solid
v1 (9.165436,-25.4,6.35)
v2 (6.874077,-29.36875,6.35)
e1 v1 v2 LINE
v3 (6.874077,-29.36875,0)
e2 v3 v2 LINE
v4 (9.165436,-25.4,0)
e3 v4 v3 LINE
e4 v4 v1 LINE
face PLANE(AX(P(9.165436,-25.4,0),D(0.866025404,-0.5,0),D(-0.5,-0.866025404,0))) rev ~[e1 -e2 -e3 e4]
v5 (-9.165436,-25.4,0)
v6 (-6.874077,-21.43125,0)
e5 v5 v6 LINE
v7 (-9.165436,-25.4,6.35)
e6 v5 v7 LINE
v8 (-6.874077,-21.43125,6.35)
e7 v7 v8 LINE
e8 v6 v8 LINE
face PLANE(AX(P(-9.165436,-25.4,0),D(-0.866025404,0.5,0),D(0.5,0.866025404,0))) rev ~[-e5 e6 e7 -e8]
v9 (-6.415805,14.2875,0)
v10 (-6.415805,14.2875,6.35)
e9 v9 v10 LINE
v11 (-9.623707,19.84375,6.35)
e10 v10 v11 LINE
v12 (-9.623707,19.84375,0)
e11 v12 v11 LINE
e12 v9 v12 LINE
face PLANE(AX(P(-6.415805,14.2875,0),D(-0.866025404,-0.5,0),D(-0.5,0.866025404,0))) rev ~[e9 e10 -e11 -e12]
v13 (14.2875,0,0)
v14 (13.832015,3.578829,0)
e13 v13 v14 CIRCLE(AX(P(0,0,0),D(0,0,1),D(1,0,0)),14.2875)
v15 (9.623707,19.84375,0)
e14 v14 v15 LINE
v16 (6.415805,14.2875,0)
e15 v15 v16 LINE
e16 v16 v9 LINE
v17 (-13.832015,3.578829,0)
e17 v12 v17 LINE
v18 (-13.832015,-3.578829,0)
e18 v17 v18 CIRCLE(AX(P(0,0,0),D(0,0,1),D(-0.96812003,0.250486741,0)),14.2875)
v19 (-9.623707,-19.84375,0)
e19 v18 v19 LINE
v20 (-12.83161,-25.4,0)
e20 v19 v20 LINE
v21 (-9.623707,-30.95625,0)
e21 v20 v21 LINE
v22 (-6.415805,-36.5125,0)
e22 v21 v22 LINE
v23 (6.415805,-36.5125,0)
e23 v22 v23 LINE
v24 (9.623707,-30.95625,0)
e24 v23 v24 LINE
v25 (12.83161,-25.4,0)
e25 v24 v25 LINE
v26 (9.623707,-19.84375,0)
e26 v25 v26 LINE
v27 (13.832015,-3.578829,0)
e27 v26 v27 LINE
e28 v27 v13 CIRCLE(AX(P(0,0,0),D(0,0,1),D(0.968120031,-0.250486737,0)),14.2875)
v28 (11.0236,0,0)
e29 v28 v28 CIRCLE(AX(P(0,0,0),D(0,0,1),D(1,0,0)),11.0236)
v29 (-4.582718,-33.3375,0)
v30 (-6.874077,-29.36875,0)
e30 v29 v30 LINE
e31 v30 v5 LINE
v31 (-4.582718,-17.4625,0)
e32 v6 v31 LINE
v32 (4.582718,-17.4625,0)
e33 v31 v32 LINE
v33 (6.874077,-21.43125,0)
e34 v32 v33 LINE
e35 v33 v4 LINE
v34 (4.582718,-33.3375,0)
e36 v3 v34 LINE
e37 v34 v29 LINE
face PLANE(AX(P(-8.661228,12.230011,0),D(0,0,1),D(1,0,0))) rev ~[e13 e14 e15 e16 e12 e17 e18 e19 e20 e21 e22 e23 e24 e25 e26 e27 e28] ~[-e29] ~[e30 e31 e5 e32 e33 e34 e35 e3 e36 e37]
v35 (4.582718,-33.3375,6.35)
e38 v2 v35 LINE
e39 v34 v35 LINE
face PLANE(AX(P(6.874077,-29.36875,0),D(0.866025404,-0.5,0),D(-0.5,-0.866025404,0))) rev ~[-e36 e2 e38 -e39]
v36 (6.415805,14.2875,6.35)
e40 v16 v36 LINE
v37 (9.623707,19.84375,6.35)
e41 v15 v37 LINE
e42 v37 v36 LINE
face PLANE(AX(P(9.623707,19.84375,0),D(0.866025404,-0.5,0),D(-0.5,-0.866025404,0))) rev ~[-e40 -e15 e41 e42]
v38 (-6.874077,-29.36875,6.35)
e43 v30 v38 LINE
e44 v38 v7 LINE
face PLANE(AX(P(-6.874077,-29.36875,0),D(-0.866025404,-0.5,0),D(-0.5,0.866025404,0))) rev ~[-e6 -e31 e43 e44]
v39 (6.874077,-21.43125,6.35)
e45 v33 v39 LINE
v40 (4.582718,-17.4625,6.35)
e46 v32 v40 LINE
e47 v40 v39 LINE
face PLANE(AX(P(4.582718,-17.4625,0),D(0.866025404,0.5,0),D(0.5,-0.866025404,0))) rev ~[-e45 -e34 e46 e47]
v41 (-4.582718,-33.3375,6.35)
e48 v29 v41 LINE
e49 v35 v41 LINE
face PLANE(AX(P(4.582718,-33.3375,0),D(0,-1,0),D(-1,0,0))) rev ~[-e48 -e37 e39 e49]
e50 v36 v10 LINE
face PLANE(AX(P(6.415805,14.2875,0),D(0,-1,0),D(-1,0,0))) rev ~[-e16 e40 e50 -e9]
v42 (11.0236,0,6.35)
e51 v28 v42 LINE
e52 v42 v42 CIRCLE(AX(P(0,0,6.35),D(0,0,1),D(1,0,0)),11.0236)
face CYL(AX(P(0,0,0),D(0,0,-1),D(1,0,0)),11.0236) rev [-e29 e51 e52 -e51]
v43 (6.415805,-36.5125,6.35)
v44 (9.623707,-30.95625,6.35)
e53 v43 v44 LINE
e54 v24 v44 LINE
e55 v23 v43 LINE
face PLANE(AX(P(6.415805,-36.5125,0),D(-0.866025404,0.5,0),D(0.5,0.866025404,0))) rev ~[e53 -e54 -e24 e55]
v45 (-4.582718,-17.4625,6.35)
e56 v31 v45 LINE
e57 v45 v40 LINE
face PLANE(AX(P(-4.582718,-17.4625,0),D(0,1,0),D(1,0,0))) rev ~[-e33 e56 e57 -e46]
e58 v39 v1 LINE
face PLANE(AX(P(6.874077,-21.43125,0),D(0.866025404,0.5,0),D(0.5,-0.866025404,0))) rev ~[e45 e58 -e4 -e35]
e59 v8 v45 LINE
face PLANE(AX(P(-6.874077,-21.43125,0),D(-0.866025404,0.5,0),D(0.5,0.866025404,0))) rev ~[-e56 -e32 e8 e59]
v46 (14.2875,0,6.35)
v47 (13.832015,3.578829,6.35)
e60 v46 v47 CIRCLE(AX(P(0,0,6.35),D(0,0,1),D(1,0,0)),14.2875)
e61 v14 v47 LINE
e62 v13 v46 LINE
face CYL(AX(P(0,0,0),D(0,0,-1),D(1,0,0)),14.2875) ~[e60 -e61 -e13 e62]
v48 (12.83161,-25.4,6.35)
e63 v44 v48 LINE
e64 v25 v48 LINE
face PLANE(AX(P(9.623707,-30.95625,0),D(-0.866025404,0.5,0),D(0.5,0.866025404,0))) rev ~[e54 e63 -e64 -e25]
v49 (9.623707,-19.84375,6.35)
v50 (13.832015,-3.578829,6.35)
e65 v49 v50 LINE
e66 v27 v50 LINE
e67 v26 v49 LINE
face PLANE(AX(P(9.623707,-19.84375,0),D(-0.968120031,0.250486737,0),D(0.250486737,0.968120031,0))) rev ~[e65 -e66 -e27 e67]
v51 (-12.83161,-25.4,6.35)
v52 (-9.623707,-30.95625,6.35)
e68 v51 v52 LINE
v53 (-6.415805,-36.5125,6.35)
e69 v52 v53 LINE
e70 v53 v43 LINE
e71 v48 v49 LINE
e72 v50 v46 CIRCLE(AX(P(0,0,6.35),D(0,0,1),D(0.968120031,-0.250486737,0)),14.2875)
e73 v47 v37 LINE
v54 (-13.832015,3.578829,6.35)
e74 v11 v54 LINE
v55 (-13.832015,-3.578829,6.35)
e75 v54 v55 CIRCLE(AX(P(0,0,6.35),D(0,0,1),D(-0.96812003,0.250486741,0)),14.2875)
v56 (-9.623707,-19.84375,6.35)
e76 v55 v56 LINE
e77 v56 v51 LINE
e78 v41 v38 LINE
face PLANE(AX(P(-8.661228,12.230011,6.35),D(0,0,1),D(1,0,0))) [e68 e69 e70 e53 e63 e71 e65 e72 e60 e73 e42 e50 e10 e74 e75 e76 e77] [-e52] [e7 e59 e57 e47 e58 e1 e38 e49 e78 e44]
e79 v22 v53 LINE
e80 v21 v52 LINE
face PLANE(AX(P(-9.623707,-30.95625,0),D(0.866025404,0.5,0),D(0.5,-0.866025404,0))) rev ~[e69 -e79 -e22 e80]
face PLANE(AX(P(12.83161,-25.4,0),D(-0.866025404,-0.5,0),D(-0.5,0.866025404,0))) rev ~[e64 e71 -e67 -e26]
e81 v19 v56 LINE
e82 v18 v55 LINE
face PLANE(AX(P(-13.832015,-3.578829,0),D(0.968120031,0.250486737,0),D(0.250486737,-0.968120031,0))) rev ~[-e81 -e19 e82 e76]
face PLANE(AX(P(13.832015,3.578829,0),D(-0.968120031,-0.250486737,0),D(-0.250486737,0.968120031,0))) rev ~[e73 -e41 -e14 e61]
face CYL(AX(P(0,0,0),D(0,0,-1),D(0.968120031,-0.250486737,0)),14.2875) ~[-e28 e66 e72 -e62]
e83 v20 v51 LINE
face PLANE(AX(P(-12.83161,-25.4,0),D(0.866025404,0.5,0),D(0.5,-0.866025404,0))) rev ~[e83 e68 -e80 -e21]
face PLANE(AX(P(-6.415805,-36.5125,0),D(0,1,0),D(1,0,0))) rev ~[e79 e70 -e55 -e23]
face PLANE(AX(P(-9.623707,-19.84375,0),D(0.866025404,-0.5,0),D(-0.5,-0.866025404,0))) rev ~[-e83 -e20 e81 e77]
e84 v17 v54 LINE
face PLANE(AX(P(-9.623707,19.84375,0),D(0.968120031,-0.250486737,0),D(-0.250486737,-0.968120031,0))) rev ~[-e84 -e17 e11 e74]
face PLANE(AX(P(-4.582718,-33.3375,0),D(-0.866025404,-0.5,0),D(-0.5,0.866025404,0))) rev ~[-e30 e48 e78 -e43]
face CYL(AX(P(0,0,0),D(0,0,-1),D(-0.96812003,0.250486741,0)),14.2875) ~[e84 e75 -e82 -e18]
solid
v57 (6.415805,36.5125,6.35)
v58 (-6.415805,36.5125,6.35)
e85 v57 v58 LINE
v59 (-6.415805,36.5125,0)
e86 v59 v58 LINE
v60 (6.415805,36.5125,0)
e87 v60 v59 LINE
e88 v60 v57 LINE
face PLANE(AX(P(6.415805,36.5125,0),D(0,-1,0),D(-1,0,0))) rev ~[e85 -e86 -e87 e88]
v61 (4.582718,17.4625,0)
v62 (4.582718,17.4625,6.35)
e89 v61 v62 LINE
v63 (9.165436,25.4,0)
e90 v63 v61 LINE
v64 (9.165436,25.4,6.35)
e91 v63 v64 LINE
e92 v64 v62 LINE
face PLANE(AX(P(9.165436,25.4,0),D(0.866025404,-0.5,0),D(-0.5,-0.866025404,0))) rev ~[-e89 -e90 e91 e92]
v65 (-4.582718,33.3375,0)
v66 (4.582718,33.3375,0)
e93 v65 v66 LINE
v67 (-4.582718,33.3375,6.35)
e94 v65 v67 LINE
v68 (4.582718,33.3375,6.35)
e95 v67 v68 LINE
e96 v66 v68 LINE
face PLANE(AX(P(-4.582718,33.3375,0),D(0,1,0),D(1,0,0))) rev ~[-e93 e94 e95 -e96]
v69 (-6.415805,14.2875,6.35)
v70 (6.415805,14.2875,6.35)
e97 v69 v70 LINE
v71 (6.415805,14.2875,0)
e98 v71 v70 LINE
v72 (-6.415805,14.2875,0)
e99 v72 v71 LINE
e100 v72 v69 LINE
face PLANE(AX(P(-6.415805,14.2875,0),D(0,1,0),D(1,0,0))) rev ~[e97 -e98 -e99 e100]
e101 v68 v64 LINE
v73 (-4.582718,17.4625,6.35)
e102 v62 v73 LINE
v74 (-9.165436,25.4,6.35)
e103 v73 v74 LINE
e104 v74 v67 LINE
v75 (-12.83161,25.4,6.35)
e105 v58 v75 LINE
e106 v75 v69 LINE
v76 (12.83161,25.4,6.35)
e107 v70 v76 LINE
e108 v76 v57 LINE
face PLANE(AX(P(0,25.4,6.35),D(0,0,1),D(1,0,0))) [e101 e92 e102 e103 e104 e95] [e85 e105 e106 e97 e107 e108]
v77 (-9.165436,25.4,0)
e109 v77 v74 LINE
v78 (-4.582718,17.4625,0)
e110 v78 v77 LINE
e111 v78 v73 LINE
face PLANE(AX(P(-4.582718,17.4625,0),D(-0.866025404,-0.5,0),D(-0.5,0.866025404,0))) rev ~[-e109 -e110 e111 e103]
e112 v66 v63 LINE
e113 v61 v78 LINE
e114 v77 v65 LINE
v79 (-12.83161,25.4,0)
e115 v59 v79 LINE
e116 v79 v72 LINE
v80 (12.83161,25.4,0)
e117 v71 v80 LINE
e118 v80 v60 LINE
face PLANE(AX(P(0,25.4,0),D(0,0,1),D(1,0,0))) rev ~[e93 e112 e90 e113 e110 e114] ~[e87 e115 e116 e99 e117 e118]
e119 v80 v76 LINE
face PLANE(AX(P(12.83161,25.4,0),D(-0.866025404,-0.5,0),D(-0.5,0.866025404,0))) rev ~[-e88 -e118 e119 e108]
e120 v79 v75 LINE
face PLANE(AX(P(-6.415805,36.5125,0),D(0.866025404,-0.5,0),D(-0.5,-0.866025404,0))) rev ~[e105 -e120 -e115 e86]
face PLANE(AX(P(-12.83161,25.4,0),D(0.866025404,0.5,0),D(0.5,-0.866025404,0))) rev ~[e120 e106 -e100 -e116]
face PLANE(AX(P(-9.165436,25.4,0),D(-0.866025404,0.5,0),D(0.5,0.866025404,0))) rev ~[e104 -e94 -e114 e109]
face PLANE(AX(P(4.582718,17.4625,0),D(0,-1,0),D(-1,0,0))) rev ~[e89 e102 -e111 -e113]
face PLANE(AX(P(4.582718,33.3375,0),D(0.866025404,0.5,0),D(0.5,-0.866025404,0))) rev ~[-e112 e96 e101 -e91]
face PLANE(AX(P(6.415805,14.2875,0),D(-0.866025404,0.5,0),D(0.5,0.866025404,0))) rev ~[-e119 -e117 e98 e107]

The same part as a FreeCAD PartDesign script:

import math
import FreeCAD as App
import Part
import Sketcher
from FreeCAD import Vector
Q = App.Units.Quantity

doc = App.newDocument("Part")
params = doc.addObject("Spreadsheet::Sheet", "Params")
for row, (alias, value) in enumerate([
    ("pad1_length", "0.25 in"),
    ("sketch2_diameter", "0.868 in"),
    ("sketch2_radius", "0.5625 in"),
    ("pad2_length", "0.25 in"),
], start=1):
    params.set(f"A{row}", alias)
    params.set(f"B{row}", "=" + value)
    params.setAlias(f"B{row}", alias)

body = doc.addObject("PartDesign::Body", "Body")

# Sketch on XY plane
sketch1 = doc.addObject("Sketcher::SketchObject", "Sketch")
body.addObject(sketch1)
sketch1.AttachmentSupport = (doc.XY_Plane, [""])
sketch1.MapMode = "FlatFace"
sketch1.addGeometry([
    Part.LineSegment(Vector(-6.415805, 14.2875, 0), Vector(6.415805, 14.2875, 0)),  # 0
    Part.LineSegment(Vector(6.415805, 14.2875, 0), Vector(12.83161, 25.4, 0)),  # 1
    Part.LineSegment(Vector(12.83161, 25.4, 0), Vector(6.415805, 36.5125, 0)),  # 2
    Part.LineSegment(Vector(6.415805, 36.5125, 0), Vector(-6.415805, 36.5125, 0)),  # 3
    Part.LineSegment(Vector(-6.415805, 36.5125, 0), Vector(-12.83161, 25.4, 0)),  # 4
    Part.LineSegment(Vector(-12.83161, 25.4, 0), Vector(-6.415805, 14.2875, 0)),  # 5
    Part.LineSegment(Vector(4.582718, 33.3375, 0), Vector(9.165436, 25.4, 0)),  # 6
    Part.LineSegment(Vector(9.165436, 25.4, 0), Vector(4.582718, 17.4625, 0)),  # 7
    Part.LineSegment(Vector(4.582718, 17.4625, 0), Vector(-4.582718, 17.4625, 0)),  # 8
    Part.LineSegment(Vector(-4.582718, 17.4625, 0), Vector(-9.165436, 25.4, 0)),  # 9
    Part.LineSegment(Vector(-9.165436, 25.4, 0), Vector(-4.582718, 33.3375, 0)),  # 10
    Part.LineSegment(Vector(-4.582718, 33.3375, 0), Vector(4.582718, 33.3375, 0)),  # 11
], False)
sketch1.addConstraint([
    Sketcher.Constraint("Coincident", 0, 2, 1, 1),
    Sketcher.Constraint("Coincident", 1, 2, 2, 1),
    Sketcher.Constraint("Coincident", 2, 2, 3, 1),
    Sketcher.Constraint("Coincident", 3, 2, 4, 1),
    Sketcher.Constraint("Coincident", 4, 2, 5, 1),
    Sketcher.Constraint("Coincident", 5, 2, 0, 1),
    Sketcher.Constraint("Coincident", 6, 2, 7, 1),
    Sketcher.Constraint("Coincident", 7, 2, 8, 1),
    Sketcher.Constraint("Coincident", 8, 2, 9, 1),
    Sketcher.Constraint("Coincident", 9, 2, 10, 1),
    Sketcher.Constraint("Coincident", 10, 2, 11, 1),
    Sketcher.Constraint("Coincident", 11, 2, 6, 1),
    Sketcher.Constraint("Horizontal", 0),
    Sketcher.Constraint("Horizontal", 3),
    Sketcher.Constraint("Horizontal", 8),
    Sketcher.Constraint("Horizontal", 11),
    Sketcher.Constraint("Symmetric", 1, 2, 4, 2, -2),
    Sketcher.Constraint("Symmetric", 6, 2, 9, 2, -2),
    Sketcher.Constraint("Parallel", 1, 4),
    Sketcher.Constraint("Parallel", 2, 5),
    Sketcher.Constraint("Parallel", 5, 6),
    Sketcher.Constraint("Parallel", 4, 7),
    Sketcher.Constraint("Parallel", 6, 9),
    Sketcher.Constraint("Parallel", 7, 10),
    Sketcher.Constraint("Horizontal", 4, 2, 6, 2),
    Sketcher.Constraint("Vertical", 0, 2, 2, 2),
    Sketcher.Constraint("Vertical", 3, 2, 5, 2),
    Sketcher.Constraint("Vertical", 8, 2, 10, 2),
    Sketcher.Constraint("DistanceY", -1, 1, 1, 2, Q("1 in")),
    Sketcher.Constraint("Angle", 1, Q("60 deg")),
    Sketcher.Constraint("DistanceY", 7, 2, 2, 2, Q("0.75 in")),
    Sketcher.Constraint("DistanceY", -1, 1, 0, 2, Q("0.5625 in")),
    Sketcher.Constraint("DistanceX", 0, 1, 0, 2, Q("12.83161 mm")),
    Sketcher.Constraint("DistanceX", 8, 2, 8, 1, Q("9.165436 mm")),
])
pad1 = doc.addObject("PartDesign::Pad", "Pad")
body.addObject(pad1)
pad1.Profile = sketch1
pad1.setExpression("Length", "Params.pad1_length")
body2 = doc.addObject("PartDesign::Body", "Body001")

# Sketch on XY plane
sketch2 = doc.addObject("Sketcher::SketchObject", "Sketch001")
body2.addObject(sketch2)
sketch2.AttachmentSupport = (doc.getObject("XY_Plane001"), [""])
sketch2.MapMode = "FlatFace"
sketch2.addGeometry([
    Part.LineSegment(Vector(-13.832015, -3.578829, 0), Vector(-9.623707, -19.84375, 0)),  # 0
    Part.LineSegment(Vector(-9.623707, -19.84375, 0), Vector(-12.83161, -25.4, 0)),  # 1
    Part.LineSegment(Vector(-12.83161, -25.4, 0), Vector(-9.623707, -30.95625, 0)),  # 2
    Part.LineSegment(Vector(-9.623707, -30.95625, 0), Vector(-6.415805, -36.5125, 0)),  # 3
    Part.LineSegment(Vector(-6.415805, -36.5125, 0), Vector(6.415805, -36.5125, 0)),  # 4
    Part.LineSegment(Vector(6.415805, -36.5125, 0), Vector(9.623707, -30.95625, 0)),  # 5
    Part.LineSegment(Vector(9.623707, -30.95625, 0), Vector(12.83161, -25.4, 0)),  # 6
    Part.LineSegment(Vector(12.83161, -25.4, 0), Vector(9.623707, -19.84375, 0)),  # 7
    Part.LineSegment(Vector(9.623707, -19.84375, 0), Vector(13.832015, -3.578829, 0)),  # 8
    Part.ArcOfCircle(Part.Circle(Vector(0, 0, 0), Vector(0, 0, 1), 14.2875), math.radians(-14.506317), math.radians(0)),  # 9
    Part.ArcOfCircle(Part.Circle(Vector(0, 0, 0), Vector(0, 0, 1), 14.2875), math.radians(0), math.radians(14.506316)),  # 10
    Part.LineSegment(Vector(13.832015, 3.578829, 0), Vector(9.623707, 19.84375, 0)),  # 11
    Part.LineSegment(Vector(9.623707, 19.84375, 0), Vector(6.415805, 14.2875, 0)),  # 12
    Part.LineSegment(Vector(6.415805, 14.2875, 0), Vector(-6.415805, 14.2875, 0)),  # 13
    Part.LineSegment(Vector(-6.415805, 14.2875, 0), Vector(-9.623707, 19.84375, 0)),  # 14
    Part.LineSegment(Vector(-9.623707, 19.84375, 0), Vector(-13.832015, 3.578829, 0)),  # 15
    Part.ArcOfCircle(Part.Circle(Vector(0, 0, 0), Vector(0, 0, 1), 14.2875), math.radians(165.493683), math.radians(194.506318)),  # 16
    Part.LineSegment(Vector(-6.874077, -21.43125, 0), Vector(-4.582718, -17.4625, 0)),  # 17
    Part.LineSegment(Vector(-4.582718, -17.4625, 0), Vector(4.582718, -17.4625, 0)),  # 18
    Part.LineSegment(Vector(4.582718, -17.4625, 0), Vector(6.874077, -21.43125, 0)),  # 19
    Part.LineSegment(Vector(6.874077, -21.43125, 0), Vector(9.165436, -25.4, 0)),  # 20
    Part.LineSegment(Vector(9.165436, -25.4, 0), Vector(6.874077, -29.36875, 0)),  # 21
    Part.LineSegment(Vector(6.874077, -29.36875, 0), Vector(4.582718, -33.3375, 0)),  # 22
    Part.LineSegment(Vector(4.582718, -33.3375, 0), Vector(-4.582718, -33.3375, 0)),  # 23
    Part.LineSegment(Vector(-4.582718, -33.3375, 0), Vector(-6.874077, -29.36875, 0)),  # 24
    Part.LineSegment(Vector(-6.874077, -29.36875, 0), Vector(-9.165436, -25.4, 0)),  # 25
    Part.LineSegment(Vector(-9.165436, -25.4, 0), Vector(-6.874077, -21.43125, 0)),  # 26
    Part.Circle(Vector(0, 0, 0), Vector(0, 0, 1), 11.0236),  # 27
], False)
sketch2.addConstraint([
    Sketcher.Constraint("Coincident", 0, 2, 1, 1),
    Sketcher.Constraint("Coincident", 1, 2, 2, 1),
    Sketcher.Constraint("Coincident", 2, 2, 3, 1),
    Sketcher.Constraint("Coincident", 3, 2, 4, 1),
    Sketcher.Constraint("Coincident", 4, 2, 5, 1),
    Sketcher.Constraint("Coincident", 5, 2, 6, 1),
    Sketcher.Constraint("Coincident", 6, 2, 7, 1),
    Sketcher.Constraint("Coincident", 7, 2, 8, 1),
    Sketcher.Constraint("Tangent", 8, 2, 9, 1),
    Sketcher.Constraint("Tangent", 9, 2, 10, 1),
    Sketcher.Constraint("Tangent", 10, 2, 11, 1),
    Sketcher.Constraint("Coincident", 11, 2, 12, 1),
    Sketcher.Constraint("Coincident", 12, 2, 13, 1),
    Sketcher.Constraint("Coincident", 13, 2, 14, 1),
    Sketcher.Constraint("Coincident", 14, 2, 15, 1),
    Sketcher.Constraint("Tangent", 15, 2, 16, 1),
    Sketcher.Constraint("Tangent", 16, 2, 0, 1),
    Sketcher.Constraint("Coincident", 17, 2, 18, 1),
    Sketcher.Constraint("Coincident", 18, 2, 19, 1),
    Sketcher.Constraint("Coincident", 19, 2, 20, 1),
    Sketcher.Constraint("Coincident", 20, 2, 21, 1),
    Sketcher.Constraint("Coincident", 21, 2, 22, 1),
    Sketcher.Constraint("Coincident", 22, 2, 23, 1),
    Sketcher.Constraint("Coincident", 23, 2, 24, 1),
    Sketcher.Constraint("Coincident", 24, 2, 25, 1),
    Sketcher.Constraint("Coincident", 25, 2, 26, 1),
    Sketcher.Constraint("Coincident", 26, 2, 17, 1),
    Sketcher.Constraint("Horizontal", 4),
    Sketcher.Constraint("Horizontal", 13),
    Sketcher.Constraint("Horizontal", 18),
    Sketcher.Constraint("Horizontal", 23),
    Sketcher.Constraint("Coincident", 9, 3, -1, 1),
    Sketcher.Constraint("Coincident", 16, 3, -1, 1),
    Sketcher.Constraint("Coincident", 27, 3, -1, 1),
    Sketcher.Constraint("Equal", 9, 10),
    Sketcher.Constraint("Equal", 10, 16),
    Sketcher.Constraint("Symmetric", 0, 2, 11, 2, -1, 1),
    Sketcher.Constraint("Symmetric", 7, 2, 14, 2, -1, 1),
    Sketcher.Constraint("Symmetric", 2, 2, 5, 2, -2),
    Sketcher.Constraint("Symmetric", 1, 2, 6, 2, -2),
    Sketcher.Constraint("Symmetric", 0, 2, 7, 2, -2),
    Sketcher.Constraint("Symmetric", 21, 2, 24, 2, -2),
    Sketcher.Constraint("Symmetric", 20, 2, 25, 2, -2),
    Sketcher.Constraint("Symmetric", 19, 2, 26, 2, -2),
    Sketcher.Constraint("PointOnObject", 9, 2, -1),
    Sketcher.Constraint("Parallel", 2, 3),
    Sketcher.Constraint("Parallel", 1, 5),
    Sketcher.Constraint("Parallel", 5, 6),
    Sketcher.Constraint("Parallel", 6, 12),
    Sketcher.Constraint("Parallel", 7, 14),
    Sketcher.Constraint("Parallel", 12, 17),
    Sketcher.Constraint("Parallel", 14, 19),
    Sketcher.Constraint("Parallel", 19, 20),
    Sketcher.Constraint("Parallel", 17, 21),
    Sketcher.Constraint("Parallel", 21, 22),
    Sketcher.Constraint("Parallel", 20, 24),
    Sketcher.Constraint("Horizontal", 6, 2, 20, 2),
    Sketcher.Constraint("Vertical", 0, 2, 2, 2),
    Sketcher.Constraint("Vertical", 4, 2, 12, 2),
    Sketcher.Constraint("Vertical", 19, 2, 21, 2),
    Sketcher.Constraint("Vertical", 18, 2, 22, 2),
    Sketcher.Constraint("Equal", 2, 3),
    Sketcher.Constraint("Equal", 19, 20),
    Sketcher.Constraint("Diameter", 27, Q("0.868 in")),
    Sketcher.Constraint("DistanceY", 1, 2, -1, 1, Q("1 in")),
    Sketcher.Constraint("Angle", 1, Q("-120 deg")),
    Sketcher.Constraint("Radius", 9, Q("0.5625 in")),
    Sketcher.Constraint("DistanceY", 0, 2, -1, 1, Q("0.78125 in")),
    Sketcher.Constraint("DistanceY", 17, 2, -1, 1, Q("0.6875 in")),
    Sketcher.Constraint("DistanceX", 4, 1, 4, 2, Q("12.83161 mm")),
    Sketcher.Constraint("DistanceX", 18, 1, 18, 2, Q("9.165436 mm")),
])
sketch2.setExpression("Constraints[63]", "Params.sketch2_diameter")
sketch2.setExpression("Constraints[66]", "Params.sketch2_radius")
pad2 = doc.addObject("PartDesign::Pad", "Pad001")
body2.addObject(pad2)
pad2.Profile = sketch2
pad2.setExpression("Length", "Params.pad2_length")

doc.recompute()
